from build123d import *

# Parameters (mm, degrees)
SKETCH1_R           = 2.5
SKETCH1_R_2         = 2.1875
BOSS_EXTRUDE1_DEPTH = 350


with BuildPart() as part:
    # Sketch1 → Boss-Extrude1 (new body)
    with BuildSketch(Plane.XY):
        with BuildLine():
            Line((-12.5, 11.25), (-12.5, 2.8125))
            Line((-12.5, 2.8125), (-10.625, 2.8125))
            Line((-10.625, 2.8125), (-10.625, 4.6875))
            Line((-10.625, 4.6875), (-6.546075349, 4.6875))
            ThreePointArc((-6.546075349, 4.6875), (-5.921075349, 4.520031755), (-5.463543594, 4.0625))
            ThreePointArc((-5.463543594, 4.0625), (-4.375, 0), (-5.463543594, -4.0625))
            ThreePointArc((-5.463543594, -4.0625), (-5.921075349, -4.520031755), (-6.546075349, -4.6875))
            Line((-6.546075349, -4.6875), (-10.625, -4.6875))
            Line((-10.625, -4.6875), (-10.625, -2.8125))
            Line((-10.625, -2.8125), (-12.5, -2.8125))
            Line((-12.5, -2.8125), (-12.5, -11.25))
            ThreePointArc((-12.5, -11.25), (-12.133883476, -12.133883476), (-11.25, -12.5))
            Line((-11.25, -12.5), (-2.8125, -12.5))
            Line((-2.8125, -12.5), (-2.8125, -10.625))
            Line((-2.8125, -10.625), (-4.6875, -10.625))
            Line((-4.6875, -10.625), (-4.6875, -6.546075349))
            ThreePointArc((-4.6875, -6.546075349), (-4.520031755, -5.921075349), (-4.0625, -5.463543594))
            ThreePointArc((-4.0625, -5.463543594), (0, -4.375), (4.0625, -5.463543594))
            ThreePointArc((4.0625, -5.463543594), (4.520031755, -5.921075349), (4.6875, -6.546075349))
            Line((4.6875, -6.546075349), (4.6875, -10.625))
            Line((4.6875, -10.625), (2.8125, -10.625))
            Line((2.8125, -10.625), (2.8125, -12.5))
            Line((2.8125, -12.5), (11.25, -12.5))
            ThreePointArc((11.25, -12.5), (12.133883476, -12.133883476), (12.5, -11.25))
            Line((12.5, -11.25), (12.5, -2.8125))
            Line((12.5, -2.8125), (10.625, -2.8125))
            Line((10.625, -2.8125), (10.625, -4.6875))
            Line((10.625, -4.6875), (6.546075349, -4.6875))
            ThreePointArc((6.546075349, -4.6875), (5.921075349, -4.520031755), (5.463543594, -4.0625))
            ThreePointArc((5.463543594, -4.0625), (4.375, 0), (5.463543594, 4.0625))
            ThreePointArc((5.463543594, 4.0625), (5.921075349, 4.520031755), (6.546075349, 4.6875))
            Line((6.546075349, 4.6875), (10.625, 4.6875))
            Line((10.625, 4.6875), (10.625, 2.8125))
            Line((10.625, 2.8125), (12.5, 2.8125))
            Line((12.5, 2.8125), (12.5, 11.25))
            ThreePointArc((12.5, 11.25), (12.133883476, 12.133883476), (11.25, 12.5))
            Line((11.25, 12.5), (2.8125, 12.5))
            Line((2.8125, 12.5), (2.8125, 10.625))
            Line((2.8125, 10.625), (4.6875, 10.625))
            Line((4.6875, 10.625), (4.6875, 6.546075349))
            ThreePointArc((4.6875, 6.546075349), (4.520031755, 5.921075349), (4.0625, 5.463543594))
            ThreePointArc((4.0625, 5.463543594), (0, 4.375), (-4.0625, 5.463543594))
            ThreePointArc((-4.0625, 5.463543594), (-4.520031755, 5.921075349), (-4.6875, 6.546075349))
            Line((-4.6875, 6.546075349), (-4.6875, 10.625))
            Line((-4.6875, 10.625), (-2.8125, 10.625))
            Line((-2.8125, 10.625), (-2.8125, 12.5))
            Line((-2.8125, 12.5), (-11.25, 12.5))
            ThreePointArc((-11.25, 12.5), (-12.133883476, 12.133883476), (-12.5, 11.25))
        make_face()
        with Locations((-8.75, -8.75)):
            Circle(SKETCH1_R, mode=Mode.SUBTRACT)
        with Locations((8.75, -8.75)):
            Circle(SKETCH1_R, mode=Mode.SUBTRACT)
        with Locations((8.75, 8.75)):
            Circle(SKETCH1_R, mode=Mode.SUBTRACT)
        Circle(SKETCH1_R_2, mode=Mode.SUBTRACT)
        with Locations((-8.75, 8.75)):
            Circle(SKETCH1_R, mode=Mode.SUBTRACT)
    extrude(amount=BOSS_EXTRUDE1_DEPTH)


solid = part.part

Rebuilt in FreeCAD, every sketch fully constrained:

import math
import FreeCAD as App
import Part
import Sketcher

V = App.Vector
Q = App.Units.Quantity

doc = App.newDocument("Part")
body = doc.addObject("PartDesign::Body", "Body")

# Sketch on XY plane
sketch1 = body.newObject("Sketcher::SketchObject", "Sketch")
sketch1.AttachmentSupport = (doc.getObject("XY_Plane"), [""])
sketch1.MapMode = "FlatFace"
sketch1.addGeometry(Part.LineSegment(V(-12.5, 11.2, 0), V(-12.5, 2.8, 0)), False)
sketch1.addGeometry(Part.LineSegment(V(-12.5, 2.8, 0), V(-10.6, 2.8, 0)), False)
sketch1.addGeometry(Part.LineSegment(V(-10.6, 2.8, 0), V(-10.6, 4.7, 0)), False)
sketch1.addGeometry(Part.LineSegment(V(-10.6, 4.7, 0), V(-6.5, 4.7, 0)), False)
sketch1.addGeometry(Part.ArcOfCircle(Part.Circle(V(-6.5, 3.4, 0), V(0, 0, 1), 1.2), math.radians(30), math.radians(90)), False)
sketch1.addGeometry(Part.ArcOfCircle(Part.Circle(V(-12.5, 0, 0), V(0, 0, 1), 8.1), math.radians(-30), math.radians(30)), False)
sketch1.addGeometry(Part.ArcOfCircle(Part.Circle(V(-6.5, -3.4, 0), V(0, 0, 1), 1.2), math.radians(-90), math.radians(-30)), False)
sketch1.addGeometry(Part.LineSegment(V(-6.5, -4.7, 0), V(-10.6, -4.7, 0)), False)
sketch1.addGeometry(Part.LineSegment(V(-10.6, -4.7, 0), V(-10.6, -2.8, 0)), False)
sketch1.addGeometry(Part.LineSegment(V(-10.6, -2.8, 0), V(-12.5, -2.8, 0)), False)
sketch1.addGeometry(Part.LineSegment(V(-12.5, -2.8, 0), V(-12.5, -11.2, 0)), False)
sketch1.addGeometry(Part.ArcOfCircle(Part.Circle(V(-11.2, -11.2, 0), V(0, 0, 1), 1.3), math.radians(-180), math.radians(-90)), False)
sketch1.addGeometry(Part.LineSegment(V(-11.2, -12.5, 0), V(-2.8, -12.5, 0)), False)
sketch1.addGeometry(Part.LineSegment(V(-2.8, -12.5, 0), V(-2.8, -10.6, 0)), False)
sketch1.addGeometry(Part.LineSegment(V(-2.8, -10.6, 0), V(-4.7, -10.6, 0)), False)
sketch1.addGeometry(Part.LineSegment(V(-4.7, -10.6, 0), V(-4.7, -6.5, 0)), False)
sketch1.addGeometry(Part.ArcOfCircle(Part.Circle(V(-3.4, -6.5, 0), V(0, 0, 1), 1.2), math.radians(120), math.radians(180)), False)
sketch1.addGeometry(Part.ArcOfCircle(Part.Circle(V(0, -12.5, 0), V(0, 0, 1), 8.1), math.radians(60), math.radians(120)), False)
sketch1.addGeometry(Part.ArcOfCircle(Part.Circle(V(3.4, -6.5, 0), V(0, 0, 1), 1.2), math.radians(0), math.radians(60)), False)
sketch1.addGeometry(Part.LineSegment(V(4.7, -6.5, 0), V(4.7, -10.6, 0)), False)
sketch1.addGeometry(Part.LineSegment(V(4.7, -10.6, 0), V(2.8, -10.6, 0)), False)
sketch1.addGeometry(Part.LineSegment(V(2.8, -10.6, 0), V(2.8, -12.5, 0)), False)
sketch1.addGeometry(Part.LineSegment(V(2.8, -12.5, 0), V(11.2, -12.5, 0)), False)
sketch1.addGeometry(Part.ArcOfCircle(Part.Circle(V(11.2, -11.2, 0), V(0, 0, 1), 1.3), math.radians(-90), math.radians(0)), False)
sketch1.addGeometry(Part.LineSegment(V(12.5, -11.2, 0), V(12.5, -2.8, 0)), False)
sketch1.addGeometry(Part.LineSegment(V(12.5, -2.8, 0), V(10.6, -2.8, 0)), False)
sketch1.addGeometry(Part.LineSegment(V(10.6, -2.8, 0), V(10.6, -4.7, 0)), False)
sketch1.addGeometry(Part.LineSegment(V(10.6, -4.7, 0), V(6.5, -4.7, 0)), False)
sketch1.addGeometry(Part.ArcOfCircle(Part.Circle(V(6.5, -3.4, 0), V(0, 0, 1), 1.2), math.radians(-150), math.radians(-90)), False)
sketch1.addGeometry(Part.ArcOfCircle(Part.Circle(V(12.5, 0, 0), V(0, 0, 1), 8.1), math.radians(150), math.radians(210)), False)
sketch1.addGeometry(Part.ArcOfCircle(Part.Circle(V(6.5, 3.4, 0), V(0, 0, 1), 1.2), math.radians(90), math.radians(150)), False)
sketch1.addGeometry(Part.LineSegment(V(6.5, 4.7, 0), V(10.6, 4.7, 0)), False)
sketch1.addGeometry(Part.LineSegment(V(10.6, 4.7, 0), V(10.6, 2.8, 0)), False)
sketch1.addGeometry(Part.LineSegment(V(10.6, 2.8, 0), V(12.5, 2.8, 0)), False)
sketch1.addGeometry(Part.LineSegment(V(12.5, 2.8, 0), V(12.5, 11.2, 0)), False)
sketch1.addGeometry(Part.ArcOfCircle(Part.Circle(V(11.2, 11.2, 0), V(0, 0, 1), 1.3), math.radians(0), math.radians(90)), False)
sketch1.addGeometry(Part.LineSegment(V(11.2, 12.5, 0), V(2.8, 12.5, 0)), False)
sketch1.addGeometry(Part.LineSegment(V(2.8, 12.5, 0), V(2.8, 10.6, 0)), False)
sketch1.addGeometry(Part.LineSegment(V(2.8, 10.6, 0), V(4.7, 10.6, 0)), False)
sketch1.addGeometry(Part.LineSegment(V(4.7, 10.6, 0), V(4.7, 6.5, 0)), False)
sketch1.addGeometry(Part.ArcOfCircle(Part.Circle(V(3.4, 6.5, 0), V(0, 0, 1), 1.2), math.radians(-60), math.radians(0)), False)
sketch1.addGeometry(Part.ArcOfCircle(Part.Circle(V(0, 12.5, 0), V(0, 0, 1), 8.1), math.radians(-120), math.radians(-60)), False)
sketch1.addGeometry(Part.ArcOfCircle(Part.Circle(V(-3.4, 6.5, 0), V(0, 0, 1), 1.2), math.radians(180), math.radians(240)), False)
sketch1.addGeometry(Part.LineSegment(V(-4.7, 6.5, 0), V(-4.7, 10.6, 0)), False)
sketch1.addGeometry(Part.LineSegment(V(-4.7, 10.6, 0), V(-2.8, 10.6, 0)), False)
sketch1.addGeometry(Part.LineSegment(V(-2.8, 10.6, 0), V(-2.8, 12.5, 0)), False)
sketch1.addGeometry(Part.LineSegment(V(-2.8, 12.5, 0), V(-11.2, 12.5, 0)), False)
sketch1.addGeometry(Part.ArcOfCircle(Part.Circle(V(-11.2, 11.2, 0), V(0, 0, 1), 1.3), math.radians(90), math.radians(180)), False)
sketch1.addGeometry(Part.Circle(V(-8.8, -8.8, 0), V(0, 0, 1), 2.5), False)
sketch1.addGeometry(Part.Circle(V(8.8, -8.8, 0), V(0, 0, 1), 2.5), False)
sketch1.addGeometry(Part.Circle(V(-8.8, 8.8, 0), V(0, 0, 1), 2.5), False)
sketch1.addGeometry(Part.Circle(V(0, 0, 0), V(0, 0, 1), 2.2), False)
sketch1.addGeometry(Part.Circle(V(8.8, 8.8, 0), V(0, 0, 1), 2.5), False)
sketch1.addConstraint(Sketcher.Constraint("Coincident", 0, 2, 1, 1))
sketch1.addConstraint(Sketcher.Constraint("Coincident", 1, 2, 2, 1))
sketch1.addConstraint(Sketcher.Constraint("Coincident", 2, 2, 3, 1))
sketch1.addConstraint(Sketcher.Constraint("Tangent", 3, 2, 4, 2))
sketch1.addConstraint(Sketcher.Constraint("Tangent", 4, 1, 5, 2))
sketch1.addConstraint(Sketcher.Constraint("Tangent", 5, 1, 6, 2))
sketch1.addConstraint(Sketcher.Constraint("Tangent", 6, 1, 7, 1))
sketch1.addConstraint(Sketcher.Constraint("Coincident", 7, 2, 8, 1))
sketch1.addConstraint(Sketcher.Constraint("Coincident", 8, 2, 9, 1))
sketch1.addConstraint(Sketcher.Constraint("Coincident", 9, 2, 10, 1))
sketch1.addConstraint(Sketcher.Constraint("Tangent", 10, 2, 11, 1))
sketch1.addConstraint(Sketcher.Constraint("Tangent", 11, 2, 12, 1))
sketch1.addConstraint(Sketcher.Constraint("Coincident", 12, 2, 13, 1))
sketch1.addConstraint(Sketcher.Constraint("Coincident", 13, 2, 14, 1))
sketch1.addConstraint(Sketcher.Constraint("Coincident", 14, 2, 15, 1))
sketch1.addConstraint(Sketcher.Constraint("Tangent", 15, 2, 16, 2))
sketch1.addConstraint(Sketcher.Constraint("Tangent", 16, 1, 17, 2))
sketch1.addConstraint(Sketcher.Constraint("Tangent", 17, 1, 18, 2))
sketch1.addConstraint(Sketcher.Constraint("Tangent", 18, 1, 19, 1))
sketch1.addConstraint(Sketcher.Constraint("Coincident", 19, 2, 20, 1))
sketch1.addConstraint(Sketcher.Constraint("Coincident", 20, 2, 21, 1))
sketch1.addConstraint(Sketcher.Constraint("Coincident", 21, 2, 22, 1))
sketch1.addConstraint(Sketcher.Constraint("Tangent", 22, 2, 23, 1))
sketch1.addConstraint(Sketcher.Constraint("Tangent", 23, 2, 24, 1))
sketch1.addConstraint(Sketcher.Constraint("Coincident", 24, 2, 25, 1))
sketch1.addConstraint(Sketcher.Constraint("Coincident", 25, 2, 26, 1))
sketch1.addConstraint(Sketcher.Constraint("Coincident", 26, 2, 27, 1))
sketch1.addConstraint(Sketcher.Constraint("Tangent", 27, 2, 28, 2))
sketch1.addConstraint(Sketcher.Constraint("Tangent", 28, 1, 29, 2))
sketch1.addConstraint(Sketcher.Constraint("Tangent", 29, 1, 30, 2))
sketch1.addConstraint(Sketcher.Constraint("Tangent", 30, 1, 31, 1))
sketch1.addConstraint(Sketcher.Constraint("Coincident", 31, 2, 32, 1))
sketch1.addConstraint(Sketcher.Constraint("Coincident", 32, 2, 33, 1))
sketch1.addConstraint(Sketcher.Constraint("Coincident", 33, 2, 34, 1))
sketch1.addConstraint(Sketcher.Constraint("Tangent", 34, 2, 35, 1))
sketch1.addConstraint(Sketcher.Constraint("Tangent", 35, 2, 36, 1))
sketch1.addConstraint(Sketcher.Constraint("Coincident", 36, 2, 37, 1))
sketch1.addConstraint(Sketcher.Constraint("Coincident", 37, 2, 38, 1))
sketch1.addConstraint(Sketcher.Constraint("Coincident", 38, 2, 39, 1))
sketch1.addConstraint(Sketcher.Constraint("Tangent", 39, 2, 40, 2))
sketch1.addConstraint(Sketcher.Constraint("Tangent", 40, 1, 41, 2))
sketch1.addConstraint(Sketcher.Constraint("Tangent", 41, 1, 42, 2))
sketch1.addConstraint(Sketcher.Constraint("Tangent", 42, 1, 43, 1))
sketch1.addConstraint(Sketcher.Constraint("Coincident", 43, 2, 44, 1))
sketch1.addConstraint(Sketcher.Constraint("Coincident", 44, 2, 45, 1))
sketch1.addConstraint(Sketcher.Constraint("Coincident", 45, 2, 46, 1))
sketch1.addConstraint(Sketcher.Constraint("Tangent", 46, 2, 47, 1))
sketch1.addConstraint(Sketcher.Constraint("Tangent", 47, 2, 0, 1))
sketch1.addConstraint(Sketcher.Constraint("Vertical", 0))
sketch1.addConstraint(Sketcher.Constraint("Horizontal", 1))
sketch1.addConstraint(Sketcher.Constraint("Vertical", 2))
sketch1.addConstraint(Sketcher.Constraint("Horizontal", 3))
sketch1.addConstraint(Sketcher.Constraint("Horizontal", 7))
sketch1.addConstraint(Sketcher.Constraint("Vertical", 8))
sketch1.addConstraint(Sketcher.Constraint("Horizontal", 9))
sketch1.addConstraint(Sketcher.Constraint("Vertical", 10))
sketch1.addConstraint(Sketcher.Constraint("Horizontal", 12))
sketch1.addConstraint(Sketcher.Constraint("Vertical", 13))
sketch1.addConstraint(Sketcher.Constraint("Horizontal", 14))
sketch1.addConstraint(Sketcher.Constraint("Vertical", 15))
sketch1.addConstraint(Sketcher.Constraint("Vertical", 19))
sketch1.addConstraint(Sketcher.Constraint("Horizontal", 20))
sketch1.addConstraint(Sketcher.Constraint("Vertical", 21))
sketch1.addConstraint(Sketcher.Constraint("Horizontal", 22))
sketch1.addConstraint(Sketcher.Constraint("Vertical", 24))
sketch1.addConstraint(Sketcher.Constraint("Horizontal", 25))
sketch1.addConstraint(Sketcher.Constraint("Vertical", 26))
sketch1.addConstraint(Sketcher.Constraint("Horizontal", 27))
sketch1.addConstraint(Sketcher.Constraint("Horizontal", 31))
sketch1.addConstraint(Sketcher.Constraint("Vertical", 32))
sketch1.addConstraint(Sketcher.Constraint("Horizontal", 33))
sketch1.addConstraint(Sketcher.Constraint("Vertical", 34))
sketch1.addConstraint(Sketcher.Constraint("Horizontal", 36))
sketch1.addConstraint(Sketcher.Constraint("Vertical", 37))
sketch1.addConstraint(Sketcher.Constraint("Horizontal", 38))
sketch1.addConstraint(Sketcher.Constraint("Vertical", 39))
sketch1.addConstraint(Sketcher.Constraint("Vertical", 43))
sketch1.addConstraint(Sketcher.Constraint("Horizontal", 44))
sketch1.addConstraint(Sketcher.Constraint("Vertical", 45))
sketch1.addConstraint(Sketcher.Constraint("Horizontal", 46))
sketch1.addConstraint(Sketcher.Constraint("Coincident", 51, 3, -1, 1))
sketch1.addConstraint(Sketcher.Constraint("Equal", 4, 6))
sketch1.addConstraint(Sketcher.Constraint("Equal", 6, 11))
sketch1.addConstraint(Sketcher.Constraint("Equal", 11, 16))
sketch1.addConstraint(Sketcher.Constraint("Equal", 5, 17))
sketch1.addConstraint(Sketcher.Constraint("Equal", 16, 18))
sketch1.addConstraint(Sketcher.Constraint("Equal", 18, 23))
sketch1.addConstraint(Sketcher.Constraint("Equal", 23, 28))
sketch1.addConstraint(Sketcher.Constraint("Equal", 17, 29))
sketch1.addConstraint(Sketcher.Constraint("Equal", 28, 30))
sketch1.addConstraint(Sketcher.Constraint("Equal", 30, 35))
sketch1.addConstraint(Sketcher.Constraint("Equal", 35, 40))
sketch1.addConstraint(Sketcher.Constraint("Equal", 29, 41))
sketch1.addConstraint(Sketcher.Constraint("Equal", 40, 42))
sketch1.addConstraint(Sketcher.Constraint("Equal", 42, 47))
sketch1.addConstraint(Sketcher.Constraint("Equal", 48, 49))
sketch1.addConstraint(Sketcher.Constraint("Equal", 49, 50))
sketch1.addConstraint(Sketcher.Constraint("Equal", 50, 52))
sketch1.addConstraint(Sketcher.Constraint("Symmetric", 4, 3, 28, 3, -1, 1))
sketch1.addConstraint(Sketcher.Constraint("Symmetric", 6, 3, 30, 3, -1, 1))
sketch1.addConstraint(Sketcher.Constraint("Symmetric", 11, 3, 35, 3, -1, 1))
sketch1.addConstraint(Sketcher.Constraint("Symmetric", 16, 3, 40, 3, -1, 1))
sketch1.addConstraint(Sketcher.Constraint("Symmetric", 18, 3, 42, 3, -1, 1))
sketch1.addConstraint(Sketcher.Constraint("Symmetric", 23, 3, 47, 3, -1, 1))
sketch1.addConstraint(Sketcher.Constraint("Symmetric", 49, 3, 50, 3, -1, 1))
sketch1.addConstraint(Sketcher.Constraint("Symmetric", 48, 3, 52, 3, -1, 1))
sketch1.addConstraint(Sketcher.Constraint("Symmetric", 1, 2, 25, 2, -1, 1))
sketch1.addConstraint(Sketcher.Constraint("Symmetric", 8, 2, 32, 2, -1, 1))
sketch1.addConstraint(Sketcher.Constraint("Symmetric", 13, 2, 37, 2, -1, 1))
sketch1.addConstraint(Sketcher.Constraint("Symmetric", 20, 2, 44, 2, -1, 1))
sketch1.addConstraint(Sketcher.Constraint("Symmetric", 16, 3, 18, 3, -2))
sketch1.addConstraint(Sketcher.Constraint("Symmetric", 11, 3, 23, 3, -2))
sketch1.addConstraint(Sketcher.Constraint("Symmetric", 6, 3, 28, 3, -2))
sketch1.addConstraint(Sketcher.Constraint("Symmetric", 48, 3, 49, 3, -2))
sketch1.addConstraint(Sketcher.Constraint("Symmetric", 13, 2, 20, 2, -2))
sketch1.addConstraint(Sketcher.Constraint("Symmetric", 8, 2, 25, 2, -2))
sketch1.addConstraint(Sketcher.Constraint("Horizontal", 17, 3, 11, 2))
sketch1.addConstraint(Sketcher.Constraint("Vertical", 5, 3, 0, 2))
sketch1.addConstraint(Sketcher.Constraint("Equal", 9, 14))
sketch1.addConstraint(Sketcher.Constraint("Equal", 46, 0))
sketch1.addConstraint(Sketcher.Constraint("Equal", 44, 2))
sketch1.addConstraint(Sketcher.Constraint("Equal", 8, 13))
sketch1.addConstraint(Sketcher.Constraint("Equal", 31, 15))
sketch1.addConstraint(Sketcher.Constraint("Diameter", 48, Q("5 mm")))
sketch1.addConstraint(Sketcher.Constraint("Radius", 4, Q("1.25 mm")))
sketch1.addConstraint(Sketcher.Constraint("Diameter", 51, Q("4.375 mm")))
sketch1.addConstraint(Sketcher.Constraint("Radius", 5, Q("8.125 mm")))
sketch1.addConstraint(Sketcher.Constraint("DistanceX", 5, 3, -1, 1, Q("12.5 mm")))
sketch1.addConstraint(Sketcher.Constraint("DistanceX", 1, 1, 1, 2, Q("1.875 mm")))
sketch1.addConstraint(Sketcher.Constraint("DistanceX", 48, 3, -1, 1, Q("8.75 mm")))
sketch1.addConstraint(Sketcher.Constraint("DistanceY", 48, 3, -1, 1, Q("8.75 mm")))
sketch1.addConstraint(Sketcher.Constraint("DistanceX", 12, 1, 12, 2, Q("8.4375 mm")))
pad1 = body.newObject("PartDesign::Pad", "Pad")
pad1.Profile = sketch1
pad1.Length = 350

doc.recompute()
